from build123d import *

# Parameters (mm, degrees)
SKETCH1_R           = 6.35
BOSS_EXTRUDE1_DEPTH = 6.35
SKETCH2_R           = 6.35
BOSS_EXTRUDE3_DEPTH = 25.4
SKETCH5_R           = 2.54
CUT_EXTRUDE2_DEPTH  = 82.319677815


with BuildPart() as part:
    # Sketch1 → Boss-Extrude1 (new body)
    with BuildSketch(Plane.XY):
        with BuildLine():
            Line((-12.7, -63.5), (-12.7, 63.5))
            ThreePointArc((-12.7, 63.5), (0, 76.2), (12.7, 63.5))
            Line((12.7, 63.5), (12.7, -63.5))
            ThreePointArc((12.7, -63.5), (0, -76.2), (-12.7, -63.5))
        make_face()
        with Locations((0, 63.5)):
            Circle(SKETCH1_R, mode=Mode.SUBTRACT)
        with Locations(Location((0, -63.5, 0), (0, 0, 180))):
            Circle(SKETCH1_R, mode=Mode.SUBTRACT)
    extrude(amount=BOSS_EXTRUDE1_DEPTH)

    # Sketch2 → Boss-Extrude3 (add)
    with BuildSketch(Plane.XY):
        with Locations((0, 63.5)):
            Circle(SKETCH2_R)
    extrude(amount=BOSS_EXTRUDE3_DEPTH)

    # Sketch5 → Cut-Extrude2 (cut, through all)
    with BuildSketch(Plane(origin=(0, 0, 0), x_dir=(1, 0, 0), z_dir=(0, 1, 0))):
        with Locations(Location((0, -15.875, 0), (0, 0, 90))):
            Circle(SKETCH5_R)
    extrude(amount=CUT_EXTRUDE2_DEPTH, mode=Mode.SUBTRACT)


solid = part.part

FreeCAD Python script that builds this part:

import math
import FreeCAD as App
import Part
import Sketcher
Q = App.Units.Quantity

doc = App.newDocument("Part")
body = doc.addObject("PartDesign::Body", "Body")

# Sketch on XY plane
sketch1 = doc.addObject("Sketcher::SketchObject", "Sketch")
body.addObject(sketch1)
sketch1.AttachmentSupport = (doc.XY_Plane, [""])
sketch1.MapMode = "FlatFace"
sketch1.addGeometry([
    Part.LineSegment(App.Vector(-12.7, 63.5, 0), App.Vector(-12.7, -63.5, 0)),  # 0
    Part.ArcOfCircle(Part.Circle(App.Vector(0, -63.5, 0), App.Vector(0, 0, 1), 12.7), math.radians(180), math.radians(360)),  # 1
    Part.LineSegment(App.Vector(12.7, -63.5, 0), App.Vector(12.7, 63.5, 0)),  # 2
    Part.ArcOfCircle(Part.Circle(App.Vector(0, 63.5, 0), App.Vector(0, 0, 1), 12.7), math.radians(0), math.radians(180)),  # 3
    Part.Circle(App.Vector(0, -63.5, 0), App.Vector(0, 0, 1), 6.35),  # 4
    Part.Circle(App.Vector(0, 63.5, 0), App.Vector(0, 0, 1), 6.35),  # 5
], False)
sketch1.addConstraint([
    Sketcher.Constraint("Tangent", 0, 2, 1, 1),
    Sketcher.Constraint("Tangent", 1, 2, 2, 1),
    Sketcher.Constraint("Tangent", 2, 2, 3, 1),
    Sketcher.Constraint("Tangent", 3, 2, 0, 1),
    Sketcher.Constraint("Vertical", 0),
    Sketcher.Constraint("Vertical", 2),
    Sketcher.Constraint("Coincident", 4, 3, 1, 3),
    Sketcher.Constraint("Coincident", 5, 3, 3, 3),
    Sketcher.Constraint("Equal", 4, 5),
    Sketcher.Constraint("Symmetric", 1, 3, 3, 3, -1, 1),
    Sketcher.Constraint("Diameter", 4, Q("0.5 in")),
    Sketcher.Constraint("Radius", 1, Q("0.5 in")),
    Sketcher.Constraint("DistanceY", 0, 2, 0, 1, Q("5 in")),
])
pad1 = doc.addObject("PartDesign::Pad", "Pad")
body.addObject(pad1)
pad1.Profile = sketch1
pad1.Length = Q("0.25 in")

# Sketch on XY plane
sketch2 = doc.addObject("Sketcher::SketchObject", "Sketch001")
body.addObject(sketch2)
sketch2.AttachmentSupport = (doc.XY_Plane, [""])
sketch2.MapMode = "FlatFace"
sketch2.addGeometry(Part.Circle(App.Vector(0, 63.5, 0), App.Vector(0, 0, 1), 6.35), False)
sketch2.addConstraint([
    Sketcher.Constraint("PointOnObject", 0, 3, -2),
    Sketcher.Constraint("Diameter", 0, Q("0.5 in")),
    Sketcher.Constraint("DistanceY", -1, 1, 0, 3, Q("2.5 in")),
])
pad2 = doc.addObject("PartDesign::Pad", "Pad001")
body.addObject(pad2)
pad2.Profile = sketch2
pad2.Length = Q("1 in")

# Sketch on XZ plane
sketch3 = doc.addObject("Sketcher::SketchObject", "Sketch002")
body.addObject(sketch3)
sketch3.AttachmentSupport = (doc.XZ_Plane, [""])
sketch3.MapMode = "FlatFace"
sketch3.addGeometry(Part.Circle(App.Vector(0, 15.875, 0), App.Vector(0, 0, 1), 2.54), False)
sketch3.addConstraint([
    Sketcher.Constraint("PointOnObject", 0, 3, -2),
    Sketcher.Constraint("Diameter", 0, Q("0.2 in")),
    Sketcher.Constraint("DistanceY", -1, 1, 0, 3, Q("0.625 in")),
])
pocket1 = doc.addObject("PartDesign::Pocket", "Pocket")
body.addObject(pocket1)
pocket1.Profile = sketch3
pocket1.Type = "ThroughAll"

doc.recompute()
